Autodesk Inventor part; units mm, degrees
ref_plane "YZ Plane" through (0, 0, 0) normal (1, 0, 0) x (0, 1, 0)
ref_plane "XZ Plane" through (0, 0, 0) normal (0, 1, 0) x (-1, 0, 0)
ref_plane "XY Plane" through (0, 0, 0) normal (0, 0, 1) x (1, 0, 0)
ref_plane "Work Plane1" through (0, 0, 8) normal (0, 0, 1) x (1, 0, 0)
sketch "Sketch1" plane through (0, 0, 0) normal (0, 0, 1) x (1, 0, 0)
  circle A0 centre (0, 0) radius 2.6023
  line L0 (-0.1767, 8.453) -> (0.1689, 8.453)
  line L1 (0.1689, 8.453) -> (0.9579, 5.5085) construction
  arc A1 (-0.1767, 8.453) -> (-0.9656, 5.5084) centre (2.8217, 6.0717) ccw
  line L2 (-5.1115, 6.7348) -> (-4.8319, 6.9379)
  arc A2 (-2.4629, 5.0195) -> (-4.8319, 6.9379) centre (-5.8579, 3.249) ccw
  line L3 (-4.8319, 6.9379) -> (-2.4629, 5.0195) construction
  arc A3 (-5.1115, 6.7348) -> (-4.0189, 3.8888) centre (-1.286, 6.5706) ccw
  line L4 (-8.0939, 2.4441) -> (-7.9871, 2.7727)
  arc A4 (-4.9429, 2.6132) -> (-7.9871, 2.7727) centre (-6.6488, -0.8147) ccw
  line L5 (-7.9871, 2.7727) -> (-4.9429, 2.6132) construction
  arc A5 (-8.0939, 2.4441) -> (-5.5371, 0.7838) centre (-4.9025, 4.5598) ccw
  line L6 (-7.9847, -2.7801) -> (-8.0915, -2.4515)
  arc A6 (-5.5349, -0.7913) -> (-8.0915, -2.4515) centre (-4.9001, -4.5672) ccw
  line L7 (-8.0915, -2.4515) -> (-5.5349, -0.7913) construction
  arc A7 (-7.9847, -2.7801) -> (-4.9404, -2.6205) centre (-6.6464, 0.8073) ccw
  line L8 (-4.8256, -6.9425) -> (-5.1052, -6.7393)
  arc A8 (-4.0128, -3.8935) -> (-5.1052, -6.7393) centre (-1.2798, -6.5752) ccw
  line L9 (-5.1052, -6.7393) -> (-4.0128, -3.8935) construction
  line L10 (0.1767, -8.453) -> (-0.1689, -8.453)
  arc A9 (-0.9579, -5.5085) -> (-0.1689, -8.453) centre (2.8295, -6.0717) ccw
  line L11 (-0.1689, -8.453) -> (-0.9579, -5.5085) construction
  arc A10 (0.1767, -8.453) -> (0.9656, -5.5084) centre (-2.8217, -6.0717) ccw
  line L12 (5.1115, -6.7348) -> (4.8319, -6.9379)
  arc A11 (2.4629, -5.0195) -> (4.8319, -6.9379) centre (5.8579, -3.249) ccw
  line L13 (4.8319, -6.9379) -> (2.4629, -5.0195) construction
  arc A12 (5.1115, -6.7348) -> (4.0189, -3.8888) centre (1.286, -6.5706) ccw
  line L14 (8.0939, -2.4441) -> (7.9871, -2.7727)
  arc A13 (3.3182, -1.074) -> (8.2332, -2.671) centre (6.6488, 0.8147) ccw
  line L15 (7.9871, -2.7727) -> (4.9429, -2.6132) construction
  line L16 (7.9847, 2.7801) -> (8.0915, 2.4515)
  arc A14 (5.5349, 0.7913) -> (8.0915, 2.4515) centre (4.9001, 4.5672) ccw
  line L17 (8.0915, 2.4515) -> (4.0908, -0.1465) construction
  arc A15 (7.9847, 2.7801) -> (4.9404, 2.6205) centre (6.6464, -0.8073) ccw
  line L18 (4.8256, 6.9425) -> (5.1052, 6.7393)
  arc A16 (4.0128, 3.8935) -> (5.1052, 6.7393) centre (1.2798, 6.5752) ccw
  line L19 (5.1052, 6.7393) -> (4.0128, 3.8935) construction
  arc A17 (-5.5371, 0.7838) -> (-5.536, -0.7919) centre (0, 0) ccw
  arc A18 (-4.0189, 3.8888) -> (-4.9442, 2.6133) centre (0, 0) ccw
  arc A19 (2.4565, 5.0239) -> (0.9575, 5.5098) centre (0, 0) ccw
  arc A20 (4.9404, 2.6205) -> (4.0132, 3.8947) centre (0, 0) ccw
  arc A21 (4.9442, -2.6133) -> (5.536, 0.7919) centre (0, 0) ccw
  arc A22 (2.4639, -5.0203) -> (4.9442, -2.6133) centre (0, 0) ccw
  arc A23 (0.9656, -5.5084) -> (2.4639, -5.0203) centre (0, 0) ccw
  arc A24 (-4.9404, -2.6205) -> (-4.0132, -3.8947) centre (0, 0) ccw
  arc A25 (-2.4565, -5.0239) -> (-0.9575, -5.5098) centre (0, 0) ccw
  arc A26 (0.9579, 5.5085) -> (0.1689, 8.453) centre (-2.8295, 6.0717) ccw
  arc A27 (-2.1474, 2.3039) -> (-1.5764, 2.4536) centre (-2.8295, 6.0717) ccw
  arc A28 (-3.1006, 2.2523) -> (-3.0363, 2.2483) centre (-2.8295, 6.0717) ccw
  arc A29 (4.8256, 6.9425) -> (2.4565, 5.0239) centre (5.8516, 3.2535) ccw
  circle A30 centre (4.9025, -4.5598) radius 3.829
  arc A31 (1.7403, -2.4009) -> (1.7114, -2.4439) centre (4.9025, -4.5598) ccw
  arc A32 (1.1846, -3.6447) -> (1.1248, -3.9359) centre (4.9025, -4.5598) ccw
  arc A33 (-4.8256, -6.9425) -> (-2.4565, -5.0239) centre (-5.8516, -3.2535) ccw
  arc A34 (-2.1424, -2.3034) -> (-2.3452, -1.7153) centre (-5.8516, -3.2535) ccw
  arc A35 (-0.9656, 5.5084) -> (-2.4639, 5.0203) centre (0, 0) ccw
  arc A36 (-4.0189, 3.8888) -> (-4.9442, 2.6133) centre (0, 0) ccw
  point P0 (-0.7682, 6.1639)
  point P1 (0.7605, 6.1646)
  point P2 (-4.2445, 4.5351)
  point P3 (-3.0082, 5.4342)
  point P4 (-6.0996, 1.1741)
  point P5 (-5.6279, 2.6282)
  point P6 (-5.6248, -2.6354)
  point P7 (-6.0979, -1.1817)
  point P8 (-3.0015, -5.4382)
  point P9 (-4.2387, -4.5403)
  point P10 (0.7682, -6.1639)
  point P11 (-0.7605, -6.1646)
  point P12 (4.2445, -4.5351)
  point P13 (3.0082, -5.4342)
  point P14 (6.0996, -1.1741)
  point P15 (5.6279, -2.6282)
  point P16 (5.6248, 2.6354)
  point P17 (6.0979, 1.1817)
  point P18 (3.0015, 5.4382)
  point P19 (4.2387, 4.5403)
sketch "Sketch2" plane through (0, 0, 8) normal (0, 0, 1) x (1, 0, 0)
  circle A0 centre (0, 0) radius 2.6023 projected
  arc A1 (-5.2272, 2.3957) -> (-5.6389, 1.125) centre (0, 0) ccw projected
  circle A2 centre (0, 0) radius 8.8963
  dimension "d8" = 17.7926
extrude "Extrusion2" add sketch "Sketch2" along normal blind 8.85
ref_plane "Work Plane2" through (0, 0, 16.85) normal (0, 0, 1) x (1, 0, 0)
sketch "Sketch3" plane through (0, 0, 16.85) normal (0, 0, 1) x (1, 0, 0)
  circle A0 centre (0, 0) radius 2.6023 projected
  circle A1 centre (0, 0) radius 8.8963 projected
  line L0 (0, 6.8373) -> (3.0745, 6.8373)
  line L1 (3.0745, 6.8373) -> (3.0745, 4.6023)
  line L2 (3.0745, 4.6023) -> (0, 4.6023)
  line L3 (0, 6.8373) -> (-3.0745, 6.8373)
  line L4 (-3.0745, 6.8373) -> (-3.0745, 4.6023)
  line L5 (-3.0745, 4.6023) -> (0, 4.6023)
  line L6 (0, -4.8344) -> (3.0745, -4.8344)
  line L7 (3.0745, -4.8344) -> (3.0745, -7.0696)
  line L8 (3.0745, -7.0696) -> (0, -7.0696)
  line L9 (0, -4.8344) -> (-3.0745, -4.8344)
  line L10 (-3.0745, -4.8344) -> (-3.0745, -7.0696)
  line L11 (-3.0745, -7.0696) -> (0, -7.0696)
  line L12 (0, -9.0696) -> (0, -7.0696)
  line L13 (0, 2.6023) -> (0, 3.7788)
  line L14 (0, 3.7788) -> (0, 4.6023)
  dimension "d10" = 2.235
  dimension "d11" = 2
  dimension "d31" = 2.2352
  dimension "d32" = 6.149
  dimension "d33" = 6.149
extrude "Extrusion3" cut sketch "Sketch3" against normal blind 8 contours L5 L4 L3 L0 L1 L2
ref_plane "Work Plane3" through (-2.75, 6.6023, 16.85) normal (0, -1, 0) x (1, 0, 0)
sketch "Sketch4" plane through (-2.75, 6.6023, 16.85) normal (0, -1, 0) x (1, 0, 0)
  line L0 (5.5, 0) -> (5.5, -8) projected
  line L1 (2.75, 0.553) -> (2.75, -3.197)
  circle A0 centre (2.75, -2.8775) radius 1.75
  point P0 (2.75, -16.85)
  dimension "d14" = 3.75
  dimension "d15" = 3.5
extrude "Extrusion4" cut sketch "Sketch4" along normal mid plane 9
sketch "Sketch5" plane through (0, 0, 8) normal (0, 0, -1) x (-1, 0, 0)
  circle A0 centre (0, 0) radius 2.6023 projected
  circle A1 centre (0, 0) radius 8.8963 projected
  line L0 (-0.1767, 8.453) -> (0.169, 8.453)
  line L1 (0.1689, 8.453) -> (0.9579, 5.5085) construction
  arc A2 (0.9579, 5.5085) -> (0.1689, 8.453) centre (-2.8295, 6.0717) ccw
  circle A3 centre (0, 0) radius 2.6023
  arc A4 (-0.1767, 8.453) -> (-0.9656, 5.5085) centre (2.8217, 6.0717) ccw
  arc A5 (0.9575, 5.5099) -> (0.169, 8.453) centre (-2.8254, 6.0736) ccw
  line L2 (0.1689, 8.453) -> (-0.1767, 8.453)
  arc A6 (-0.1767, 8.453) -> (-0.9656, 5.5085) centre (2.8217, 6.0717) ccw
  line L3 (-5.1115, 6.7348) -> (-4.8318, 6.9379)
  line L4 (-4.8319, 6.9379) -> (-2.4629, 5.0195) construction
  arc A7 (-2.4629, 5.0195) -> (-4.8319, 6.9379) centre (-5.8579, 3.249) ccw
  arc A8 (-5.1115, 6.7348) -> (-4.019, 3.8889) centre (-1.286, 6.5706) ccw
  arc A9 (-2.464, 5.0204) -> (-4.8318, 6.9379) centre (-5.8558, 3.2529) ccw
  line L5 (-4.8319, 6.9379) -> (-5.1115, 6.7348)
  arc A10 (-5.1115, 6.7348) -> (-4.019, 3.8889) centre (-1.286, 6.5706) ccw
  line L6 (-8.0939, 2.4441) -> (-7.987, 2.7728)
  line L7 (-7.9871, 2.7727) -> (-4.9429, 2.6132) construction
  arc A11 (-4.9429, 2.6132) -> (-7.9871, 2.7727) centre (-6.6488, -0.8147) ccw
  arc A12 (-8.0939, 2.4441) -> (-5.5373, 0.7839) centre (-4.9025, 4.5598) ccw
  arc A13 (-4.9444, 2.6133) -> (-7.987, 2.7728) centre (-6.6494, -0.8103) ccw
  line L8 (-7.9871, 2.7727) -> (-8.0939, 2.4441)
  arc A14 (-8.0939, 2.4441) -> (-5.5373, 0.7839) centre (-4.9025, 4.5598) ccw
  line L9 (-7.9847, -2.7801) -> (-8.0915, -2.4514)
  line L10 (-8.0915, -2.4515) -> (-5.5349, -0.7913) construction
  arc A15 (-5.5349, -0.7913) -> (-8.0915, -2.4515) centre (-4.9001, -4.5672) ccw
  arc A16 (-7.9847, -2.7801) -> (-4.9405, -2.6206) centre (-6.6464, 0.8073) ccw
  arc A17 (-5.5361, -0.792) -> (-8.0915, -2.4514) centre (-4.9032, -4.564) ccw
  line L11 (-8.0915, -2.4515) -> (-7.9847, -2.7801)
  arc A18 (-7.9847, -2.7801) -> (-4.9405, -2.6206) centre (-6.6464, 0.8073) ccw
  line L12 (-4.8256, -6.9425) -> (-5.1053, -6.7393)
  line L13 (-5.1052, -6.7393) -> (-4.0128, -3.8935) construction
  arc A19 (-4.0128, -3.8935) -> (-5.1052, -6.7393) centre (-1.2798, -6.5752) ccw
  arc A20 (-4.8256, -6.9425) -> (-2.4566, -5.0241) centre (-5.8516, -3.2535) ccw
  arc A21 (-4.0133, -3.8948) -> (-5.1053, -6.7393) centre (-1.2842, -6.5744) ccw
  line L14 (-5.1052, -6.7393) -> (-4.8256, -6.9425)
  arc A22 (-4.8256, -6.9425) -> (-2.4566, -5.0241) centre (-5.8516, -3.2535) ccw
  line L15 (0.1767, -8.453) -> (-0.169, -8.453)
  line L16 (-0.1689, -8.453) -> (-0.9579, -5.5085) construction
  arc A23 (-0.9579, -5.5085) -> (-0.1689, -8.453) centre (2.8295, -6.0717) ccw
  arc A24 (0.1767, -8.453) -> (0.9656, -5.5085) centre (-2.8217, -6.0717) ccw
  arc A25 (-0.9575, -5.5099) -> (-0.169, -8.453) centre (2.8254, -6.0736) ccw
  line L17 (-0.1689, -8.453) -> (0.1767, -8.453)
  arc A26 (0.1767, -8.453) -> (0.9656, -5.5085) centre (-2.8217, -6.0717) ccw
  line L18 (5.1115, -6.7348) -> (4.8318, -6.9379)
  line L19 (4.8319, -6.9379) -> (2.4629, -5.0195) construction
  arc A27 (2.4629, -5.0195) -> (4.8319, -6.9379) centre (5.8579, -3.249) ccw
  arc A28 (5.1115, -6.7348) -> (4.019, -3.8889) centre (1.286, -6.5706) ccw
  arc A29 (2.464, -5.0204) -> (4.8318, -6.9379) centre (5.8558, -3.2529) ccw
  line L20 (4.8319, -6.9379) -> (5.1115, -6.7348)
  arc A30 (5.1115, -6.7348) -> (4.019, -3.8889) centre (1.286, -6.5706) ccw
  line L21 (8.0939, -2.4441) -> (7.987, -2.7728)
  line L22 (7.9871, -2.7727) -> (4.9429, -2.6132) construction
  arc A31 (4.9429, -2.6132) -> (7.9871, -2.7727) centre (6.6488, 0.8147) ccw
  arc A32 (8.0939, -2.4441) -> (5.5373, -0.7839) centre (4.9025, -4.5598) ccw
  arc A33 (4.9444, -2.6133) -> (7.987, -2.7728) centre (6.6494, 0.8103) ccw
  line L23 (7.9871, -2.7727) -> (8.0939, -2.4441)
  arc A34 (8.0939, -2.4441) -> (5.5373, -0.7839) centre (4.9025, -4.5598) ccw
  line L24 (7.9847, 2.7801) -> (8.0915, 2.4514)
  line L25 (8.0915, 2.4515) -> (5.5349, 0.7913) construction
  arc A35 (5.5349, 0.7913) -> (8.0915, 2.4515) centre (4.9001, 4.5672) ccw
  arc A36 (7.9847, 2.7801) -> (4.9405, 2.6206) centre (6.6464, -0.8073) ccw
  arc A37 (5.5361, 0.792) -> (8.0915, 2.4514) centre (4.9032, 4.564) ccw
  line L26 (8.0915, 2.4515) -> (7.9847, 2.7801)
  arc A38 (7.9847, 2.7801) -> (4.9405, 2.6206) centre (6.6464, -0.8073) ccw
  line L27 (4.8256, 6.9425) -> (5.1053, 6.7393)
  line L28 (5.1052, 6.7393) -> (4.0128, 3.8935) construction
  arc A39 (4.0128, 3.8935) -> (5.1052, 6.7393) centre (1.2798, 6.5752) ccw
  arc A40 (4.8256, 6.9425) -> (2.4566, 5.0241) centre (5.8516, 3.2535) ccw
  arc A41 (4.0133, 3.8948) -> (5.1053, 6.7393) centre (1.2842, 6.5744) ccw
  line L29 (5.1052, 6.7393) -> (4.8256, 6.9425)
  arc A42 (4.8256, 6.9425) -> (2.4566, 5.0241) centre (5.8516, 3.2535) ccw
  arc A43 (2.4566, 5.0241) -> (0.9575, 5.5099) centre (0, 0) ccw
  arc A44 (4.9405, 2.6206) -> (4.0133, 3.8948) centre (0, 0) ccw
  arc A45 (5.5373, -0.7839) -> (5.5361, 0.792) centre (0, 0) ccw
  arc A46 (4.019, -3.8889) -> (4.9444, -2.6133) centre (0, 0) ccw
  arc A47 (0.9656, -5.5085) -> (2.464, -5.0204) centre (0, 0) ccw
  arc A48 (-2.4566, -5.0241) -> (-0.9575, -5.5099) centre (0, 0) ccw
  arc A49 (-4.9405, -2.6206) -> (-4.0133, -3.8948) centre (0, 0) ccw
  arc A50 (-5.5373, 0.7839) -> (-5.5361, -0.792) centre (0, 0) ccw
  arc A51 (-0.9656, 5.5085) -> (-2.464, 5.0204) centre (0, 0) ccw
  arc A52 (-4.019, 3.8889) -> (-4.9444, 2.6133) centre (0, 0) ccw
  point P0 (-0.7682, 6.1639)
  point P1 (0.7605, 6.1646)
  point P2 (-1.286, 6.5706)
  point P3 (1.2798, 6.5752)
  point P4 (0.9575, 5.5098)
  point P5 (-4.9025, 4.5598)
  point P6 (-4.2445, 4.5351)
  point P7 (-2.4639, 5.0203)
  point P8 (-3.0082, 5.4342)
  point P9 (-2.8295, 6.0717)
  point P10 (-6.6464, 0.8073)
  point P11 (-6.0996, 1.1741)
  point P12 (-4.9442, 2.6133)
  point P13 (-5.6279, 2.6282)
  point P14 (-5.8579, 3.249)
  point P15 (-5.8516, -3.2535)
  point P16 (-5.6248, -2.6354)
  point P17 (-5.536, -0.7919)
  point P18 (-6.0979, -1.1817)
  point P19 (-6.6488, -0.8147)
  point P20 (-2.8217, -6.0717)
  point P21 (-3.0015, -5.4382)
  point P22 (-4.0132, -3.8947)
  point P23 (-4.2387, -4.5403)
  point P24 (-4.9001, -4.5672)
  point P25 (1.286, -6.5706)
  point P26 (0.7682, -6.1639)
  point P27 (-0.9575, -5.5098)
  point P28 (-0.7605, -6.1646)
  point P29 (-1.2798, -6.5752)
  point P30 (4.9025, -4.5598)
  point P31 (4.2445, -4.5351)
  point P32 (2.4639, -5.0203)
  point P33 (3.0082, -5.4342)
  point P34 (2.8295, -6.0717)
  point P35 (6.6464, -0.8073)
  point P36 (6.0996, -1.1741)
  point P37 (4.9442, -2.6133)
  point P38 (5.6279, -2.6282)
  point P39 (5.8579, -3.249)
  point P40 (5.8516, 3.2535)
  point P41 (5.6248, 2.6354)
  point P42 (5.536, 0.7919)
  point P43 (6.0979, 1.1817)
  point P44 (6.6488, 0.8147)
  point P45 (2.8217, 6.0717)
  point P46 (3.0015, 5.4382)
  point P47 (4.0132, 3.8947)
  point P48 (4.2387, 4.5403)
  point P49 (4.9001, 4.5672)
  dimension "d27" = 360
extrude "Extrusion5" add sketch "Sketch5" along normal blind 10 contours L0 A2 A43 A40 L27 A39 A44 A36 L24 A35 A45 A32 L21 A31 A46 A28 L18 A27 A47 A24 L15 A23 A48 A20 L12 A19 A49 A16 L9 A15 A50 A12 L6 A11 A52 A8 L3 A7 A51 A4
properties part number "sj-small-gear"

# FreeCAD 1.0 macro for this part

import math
import FreeCAD as App
import Part
import Sketcher
from FreeCAD import Vector
Q = App.Units.Quantity


def add_polygon(sketch, points):
    """Adds a closed chain of lines whose ends are joined by coincident constraints."""
    first, n = sketch.GeometryCount, len(points)
    for a, b in zip(points, points[1:] + points[:1]):
        sketch.addGeometry(Part.LineSegment(App.Vector(*a, 0), App.Vector(*b, 0)), False)
    for i in range(n):
        sketch.addConstraint(Sketcher.Constraint("Coincident", first + i, 2, first + (i + 1) % n, 1))

doc = App.newDocument("Part")
params = doc.addObject("Spreadsheet::Sheet", "Params")
for row, (alias, value) in enumerate([
    ("pad1_length", "8.85 mm"),
    ("pocket1_length", "8 mm"),
    ("sketch3_diameter", "3.5 mm"),
    ("pocket2_length", "9 mm"),
    ("pad2_length", "10 mm"),
], start=1):
    params.set(f"A{row}", alias)
    params.set(f"B{row}", "=" + value)
    params.setAlias(f"B{row}", alias)

body = doc.addObject("PartDesign::Body", "Body")

# Sketch on XY plane
sketch1 = doc.addObject("Sketcher::SketchObject", "Sketch")
body.addObject(sketch1)
sketch1.AttachmentSupport = (doc.XY_Plane, [""])
sketch1.MapMode = "FlatFace"
sketch1.AttachmentOffset = App.Placement(Vector(0, 0, 8), App.Rotation())
sketch1.addGeometry(Part.Circle(Vector(0, 0, 0), Vector(0, 0, 1), 8.8963), False)
sketch1.addGeometry(Part.Circle(Vector(0, 0, 0), Vector(0, 0, 1), 2.6023), False)
sketch1.addConstraint(Sketcher.Constraint("Coincident", 0, 3, -1, 1))
sketch1.addConstraint(Sketcher.Constraint("Coincident", 1, 3, -1, 1))
sketch1.addConstraint(Sketcher.Constraint("Diameter", 0, Q("17.7926 mm")))
sketch1.addConstraint(Sketcher.Constraint("Diameter", 1, Q("5.2046 mm")))
pad1 = doc.addObject("PartDesign::Pad", "Pad")
body.addObject(pad1)
pad1.Profile = sketch1
pad1.setExpression("Length", "Params.pad1_length")

# Sketch on XY plane
sketch2 = doc.addObject("Sketcher::SketchObject", "Sketch001")
body.addObject(sketch2)
sketch2.AttachmentSupport = (doc.XY_Plane, [""])
sketch2.MapMode = "FlatFace"
sketch2.AttachmentOffset = App.Placement(Vector(0, 0, 16.85), App.Rotation())
add_polygon(sketch2, [(-3.0745, 4.6023), (3.0745, 4.6023), (3.0745, 6.8373), (-3.0745, 6.8373)])  # lines 0-3
sketch2.addConstraint(Sketcher.Constraint("Horizontal", 0))
sketch2.addConstraint(Sketcher.Constraint("Vertical", 1))
sketch2.addConstraint(Sketcher.Constraint("Horizontal", 2))
sketch2.addConstraint(Sketcher.Constraint("Vertical", 3))
sketch2.addConstraint(Sketcher.Constraint("DistanceX", 0, 1, 0, 2, Q("6.149 mm")))
sketch2.addConstraint(Sketcher.Constraint("DistanceY", 1, 1, 1, 2, Q("2.235 mm")))
sketch2.addConstraint(Sketcher.Constraint("DistanceX", -1, 1, 0, 2, Q("3.0745 mm")))
sketch2.addConstraint(Sketcher.Constraint("DistanceY", -1, 1, 0, 2, Q("4.6023 mm")))
pocket1 = doc.addObject("PartDesign::Pocket", "Pocket")
body.addObject(pocket1)
pocket1.Profile = sketch2
pocket1.setExpression("Length", "Params.pocket1_length")

# Sketch on XZ plane
sketch3 = doc.addObject("Sketcher::SketchObject", "Sketch002")
body.addObject(sketch3)
sketch3.AttachmentSupport = (doc.XZ_Plane, [""])
sketch3.MapMode = "FlatFace"
sketch3.AttachmentOffset = App.Placement(Vector(0, 0, -6.6023), App.Rotation())
sketch3.addGeometry(Part.Circle(Vector(0, 13.9725, 0), Vector(0, 0, 1), 1.75), False)
sketch3.addConstraint(Sketcher.Constraint("PointOnObject", 0, 3, -2))
sketch3.addConstraint(Sketcher.Constraint("Diameter", 0, Q("3.5 mm")))
sketch3.addConstraint(Sketcher.Constraint("DistanceY", -1, 1, 0, 3, Q("13.9725 mm")))
sketch3.setExpression("Constraints[1]", "Params.sketch3_diameter")
pocket2 = doc.addObject("PartDesign::Pocket", "Pocket001")
body.addObject(pocket2)
pocket2.Profile = sketch3
pocket2.setExpression("Length", "Params.pocket2_length")
pocket2.Midplane = True

# Sketch on XY plane
sketch4 = doc.addObject("Sketcher::SketchObject", "Sketch003")
body.addObject(sketch4)
sketch4.AttachmentSupport = (doc.XY_Plane, [""])
sketch4.MapMode = "FlatFace"
sketch4.AttachmentOffset = App.Placement(Vector(0, 0, 8), App.Rotation())
sketch4.addGeometry(Part.LineSegment(Vector(-0.169, 8.453, 0), Vector(0.1767, 8.453, 0)), False)
sketch4.addGeometry(Part.ArcOfCircle(Part.Circle(Vector(-2.8217, 6.0717, 0), Vector(0, 0, 1), 3.828968), math.radians(-8.458328), math.radians(38.45626)), False)
sketch4.addGeometry(Part.ArcOfCircle(Part.Circle(Vector(0.015795, 0.063392, 0), Vector(0, 0, 1), 5.527326), math.radians(63.721891), math.radians(80.10529)), False)
sketch4.addGeometry(Part.ArcOfCircle(Part.Circle(Vector(5.8579, 3.249, 0), Vector(0, 0, 1), 3.828929), math.radians(105.544376), math.radians(152.45786)), False)
sketch4.addGeometry(Part.LineSegment(Vector(4.8318, 6.9379, 0), Vector(5.1115, 6.7348, 0)), False)
sketch4.addGeometry(Part.ArcOfCircle(Part.Circle(Vector(1.286, 6.5706, 0), Vector(0, 0, 1), 3.829022), math.radians(-44.457184), math.radians(2.457769)), False)
sketch4.addGeometry(Part.ArcOfCircle(Part.Circle(Vector(0.050479, 0.042371, 0), Vector(0, 0, 1), 5.526748), math.radians(27.72066), math.radians(44.105694)), False)
sketch4.addGeometry(Part.ArcOfCircle(Part.Circle(Vector(6.6488, -0.8147, 0), Vector(0, 0, 1), 3.828915), math.radians(69.543608), math.radians(116.457308)), False)
sketch4.addGeometry(Part.LineSegment(Vector(7.987, 2.7728, 0), Vector(8.0939, 2.4441, 0)), False)
sketch4.addGeometry(Part.ArcOfCircle(Part.Circle(Vector(4.9025, 4.5598, 0), Vector(0, 0, 1), 3.828997), math.radians(-80.456741), math.radians(-33.541906)), False)
sketch4.addGeometry(Part.ArcOfCircle(Part.Circle(Vector(0.066119, 0.004634, 0), Vector(0, 0, 1), 5.526398), math.radians(-8.280767), math.radians(8.106174)), False)
sketch4.addGeometry(Part.ArcOfCircle(Part.Circle(Vector(4.9001, -4.5672, 0), Vector(0, 0, 1), 3.828889), math.radians(33.543153), math.radians(80.456741)), False)
sketch4.addGeometry(Part.LineSegment(Vector(8.0915, -2.4514, 0), Vector(7.9847, -2.7801, 0)), False)
sketch4.addGeometry(Part.ArcOfCircle(Part.Circle(Vector(6.6464, 0.8073, 0), Vector(0, 0, 1), 3.828901), math.radians(-116.457308), math.radians(-69.541683)), False)
sketch4.addGeometry(Part.ArcOfCircle(Part.Circle(Vector(0.053472, -0.033401, 0), Vector(0, 0, 1), 5.529615), math.radians(-44.272948), math.radians(-27.896799)), False)
sketch4.addGeometry(Part.ArcOfCircle(Part.Circle(Vector(1.2798, -6.5752, 0), Vector(0, 0, 1), 3.828943), math.radians(-2.456274), math.radians(44.457184)), False)
sketch4.addGeometry(Part.LineSegment(Vector(5.1053, -6.7393, 0), Vector(4.8256, -6.9425, 0)), False)
sketch4.addGeometry(Part.ArcOfCircle(Part.Circle(Vector(5.8516, -3.2535, 0), Vector(0, 0, 1), 3.82902), math.radians(-152.456533), math.radians(-105.542534)), False)
sketch4.addGeometry(Part.ArcOfCircle(Part.Circle(Vector(0.025507, -0.063104, 0), Vector(0, 0, 1), 5.524644), math.radians(-80.283701), math.radians(-63.893238)), False)
sketch4.addGeometry(Part.ArcOfCircle(Part.Circle(Vector(-2.8295, -6.0717, 0), Vector(0, 0, 1), 3.829046), math.radians(-38.455329), math.radians(8.458108)), False)
sketch4.addGeometry(Part.LineSegment(Vector(0.169, -8.453, 0), Vector(-0.1767, -8.453, 0)), False)
sketch4.addGeometry(Part.ArcOfCircle(Part.Circle(Vector(2.8217, -6.0717, 0), Vector(0, 0, 1), 3.828968), math.radians(171.541672), math.radians(218.45626)), False)
sketch4.addGeometry(Part.ArcOfCircle(Part.Circle(Vector(-0.015795, -0.063392, 0), Vector(0, 0, 1), 5.527326), math.radians(-116.278109), math.radians(-99.89471)), False)
sketch4.addGeometry(Part.ArcOfCircle(Part.Circle(Vector(-5.8579, -3.249, 0), Vector(0, 0, 1), 3.828929), math.radians(-74.455624), math.radians(-27.54214)), False)
sketch4.addGeometry(Part.LineSegment(Vector(-4.8318, -6.9379, 0), Vector(-5.1115, -6.7348, 0)), False)
sketch4.addGeometry(Part.ArcOfCircle(Part.Circle(Vector(-1.286, -6.5706, 0), Vector(0, 0, 1), 3.829022), math.radians(135.542816), math.radians(182.457769)), False)
sketch4.addGeometry(Part.ArcOfCircle(Part.Circle(Vector(-0.050479, -0.042371, 0), Vector(0, 0, 1), 5.526748), math.radians(-152.27934), math.radians(-135.894306)), False)
sketch4.addGeometry(Part.ArcOfCircle(Part.Circle(Vector(-6.6488, 0.8147, 0), Vector(0, 0, 1), 3.828915), math.radians(-110.456392), math.radians(-63.542692)), False)
sketch4.addGeometry(Part.LineSegment(Vector(-7.987, -2.7728, 0), Vector(-8.0939, -2.4441, 0)), False)
sketch4.addGeometry(Part.ArcOfCircle(Part.Circle(Vector(-4.9025, -4.5598, 0), Vector(0, 0, 1), 3.828997), math.radians(99.543259), math.radians(146.458094)), False)
sketch4.addGeometry(Part.ArcOfCircle(Part.Circle(Vector(-0.066119, -0.004634, 0), Vector(0, 0, 1), 5.526398), math.radians(171.719233), math.radians(188.106174)), False)
sketch4.addGeometry(Part.ArcOfCircle(Part.Circle(Vector(-4.9001, 4.5672, 0), Vector(0, 0, 1), 3.828889), math.radians(-146.456847), math.radians(-99.543259)), False)
sketch4.addGeometry(Part.LineSegment(Vector(-8.0915, 2.4514, 0), Vector(-7.9847, 2.7801, 0)), False)
sketch4.addGeometry(Part.ArcOfCircle(Part.Circle(Vector(-6.6464, -0.8073, 0), Vector(0, 0, 1), 3.828901), math.radians(63.542692), math.radians(110.458317)), False)
sketch4.addGeometry(Part.ArcOfCircle(Part.Circle(Vector(-0.053472, 0.033401, 0), Vector(0, 0, 1), 5.529615), math.radians(135.727052), math.radians(152.103201)), False)
sketch4.addGeometry(Part.ArcOfCircle(Part.Circle(Vector(-1.2798, 6.5752, 0), Vector(0, 0, 1), 3.828943), math.radians(177.543726), math.radians(224.457184)), False)
sketch4.addGeometry(Part.LineSegment(Vector(-5.1053, 6.7393, 0), Vector(-4.8256, 6.9425, 0)), False)
sketch4.addGeometry(Part.ArcOfCircle(Part.Circle(Vector(-5.8516, 3.2535, 0), Vector(0, 0, 1), 3.82902), math.radians(27.543467), math.radians(74.457466)), False)
sketch4.addGeometry(Part.ArcOfCircle(Part.Circle(Vector(-0.025507, 0.063104, 0), Vector(0, 0, 1), 5.524644), math.radians(99.716299), math.radians(116.106762)), False)
sketch4.addGeometry(Part.ArcOfCircle(Part.Circle(Vector(2.8295, 6.0717, 0), Vector(0, 0, 1), 3.829046), math.radians(141.544671), math.radians(188.458108)), False)
sketch4.addGeometry(Part.Circle(Vector(0, 0, 0), Vector(0, 0, 1), 2.6023), False)
sketch4.addConstraint(Sketcher.Constraint("Coincident", 0, 2, 1, 2))
sketch4.addConstraint(Sketcher.Constraint("Coincident", 1, 1, 2, 2))
sketch4.addConstraint(Sketcher.Constraint("Coincident", 2, 1, 3, 2))
sketch4.addConstraint(Sketcher.Constraint("Coincident", 3, 1, 4, 1))
sketch4.addConstraint(Sketcher.Constraint("Coincident", 4, 2, 5, 2))
sketch4.addConstraint(Sketcher.Constraint("Coincident", 5, 1, 6, 2))
sketch4.addConstraint(Sketcher.Constraint("Coincident", 6, 1, 7, 2))
sketch4.addConstraint(Sketcher.Constraint("Coincident", 7, 1, 8, 1))
sketch4.addConstraint(Sketcher.Constraint("Coincident", 8, 2, 9, 2))
sketch4.addConstraint(Sketcher.Constraint("Coincident", 9, 1, 10, 2))
sketch4.addConstraint(Sketcher.Constraint("Coincident", 10, 1, 11, 2))
sketch4.addConstraint(Sketcher.Constraint("Coincident", 11, 1, 12, 1))
sketch4.addConstraint(Sketcher.Constraint("Coincident", 12, 2, 13, 2))
sketch4.addConstraint(Sketcher.Constraint("Coincident", 13, 1, 14, 2))
sketch4.addConstraint(Sketcher.Constraint("Coincident", 14, 1, 15, 2))
sketch4.addConstraint(Sketcher.Constraint("Coincident", 15, 1, 16, 1))
sketch4.addConstraint(Sketcher.Constraint("Coincident", 16, 2, 17, 2))
sketch4.addConstraint(Sketcher.Constraint("Coincident", 17, 1, 18, 2))
sketch4.addConstraint(Sketcher.Constraint("Coincident", 18, 1, 19, 2))
sketch4.addConstraint(Sketcher.Constraint("Coincident", 19, 1, 20, 1))
sketch4.addConstraint(Sketcher.Constraint("Coincident", 20, 2, 21, 2))
sketch4.addConstraint(Sketcher.Constraint("Coincident", 21, 1, 22, 2))
sketch4.addConstraint(Sketcher.Constraint("Coincident", 22, 1, 23, 2))
sketch4.addConstraint(Sketcher.Constraint("Coincident", 23, 1, 24, 1))
sketch4.addConstraint(Sketcher.Constraint("Coincident", 24, 2, 25, 2))
sketch4.addConstraint(Sketcher.Constraint("Coincident", 25, 1, 26, 2))
sketch4.addConstraint(Sketcher.Constraint("Coincident", 26, 1, 27, 2))
sketch4.addConstraint(Sketcher.Constraint("Coincident", 27, 1, 28, 1))
sketch4.addConstraint(Sketcher.Constraint("Coincident", 28, 2, 29, 2))
sketch4.addConstraint(Sketcher.Constraint("Coincident", 29, 1, 30, 2))
sketch4.addConstraint(Sketcher.Constraint("Coincident", 30, 1, 31, 2))
sketch4.addConstraint(Sketcher.Constraint("Coincident", 31, 1, 32, 1))
sketch4.addConstraint(Sketcher.Constraint("Coincident", 32, 2, 33, 2))
sketch4.addConstraint(Sketcher.Constraint("Coincident", 33, 1, 34, 2))
sketch4.addConstraint(Sketcher.Constraint("Coincident", 34, 1, 35, 2))
sketch4.addConstraint(Sketcher.Constraint("Coincident", 35, 1, 36, 1))
sketch4.addConstraint(Sketcher.Constraint("Coincident", 36, 2, 37, 2))
sketch4.addConstraint(Sketcher.Constraint("Coincident", 37, 1, 38, 2))
sketch4.addConstraint(Sketcher.Constraint("Coincident", 38, 1, 39, 2))
sketch4.addConstraint(Sketcher.Constraint("Coincident", 39, 1, 0, 1))
sketch4.addConstraint(Sketcher.Constraint("Horizontal", 0))
sketch4.addConstraint(Sketcher.Constraint("Horizontal", 20))
sketch4.addConstraint(Sketcher.Constraint("Coincident", 40, 3, -1, 1))
sketch4.addConstraint(Sketcher.Constraint("Radius", 1, Q("3.829 mm")))
sketch4.addConstraint(Sketcher.Constraint("Radius", 3, Q("3.829 mm")))
sketch4.addConstraint(Sketcher.Constraint("Radius", 5, Q("3.829 mm")))
sketch4.addConstraint(Sketcher.Constraint("Radius", 7, Q("3.829 mm")))
sketch4.addConstraint(Sketcher.Constraint("Radius", 9, Q("3.829 mm")))
sketch4.addConstraint(Sketcher.Constraint("Radius", 11, Q("3.829 mm")))
sketch4.addConstraint(Sketcher.Constraint("Radius", 13, Q("3.829 mm")))
sketch4.addConstraint(Sketcher.Constraint("Radius", 15, Q("3.829 mm")))
sketch4.addConstraint(Sketcher.Constraint("Radius", 17, Q("3.829 mm")))
sketch4.addConstraint(Sketcher.Constraint("Radius", 19, Q("3.829 mm")))
sketch4.addConstraint(Sketcher.Constraint("Radius", 21, Q("3.829 mm")))
sketch4.addConstraint(Sketcher.Constraint("Radius", 23, Q("3.829 mm")))
sketch4.addConstraint(Sketcher.Constraint("Radius", 25, Q("3.829 mm")))
sketch4.addConstraint(Sketcher.Constraint("Radius", 27, Q("3.829 mm")))
sketch4.addConstraint(Sketcher.Constraint("Radius", 29, Q("3.829 mm")))
sketch4.addConstraint(Sketcher.Constraint("Radius", 31, Q("3.829 mm")))
sketch4.addConstraint(Sketcher.Constraint("Radius", 33, Q("3.829 mm")))
sketch4.addConstraint(Sketcher.Constraint("Radius", 35, Q("3.829 mm")))
sketch4.addConstraint(Sketcher.Constraint("Radius", 37, Q("3.829 mm")))
sketch4.addConstraint(Sketcher.Constraint("Radius", 39, Q("3.829 mm")))
sketch4.addConstraint(Sketcher.Constraint("Diameter", 40, Q("5.2046 mm")))
sketch4.addConstraint(Sketcher.Constraint("DistanceX", -1, 1, 11, 3, Q("4.9 mm")))
sketch4.addConstraint(Sketcher.Constraint("DistanceX", 31, 3, -1, 1, Q("4.9 mm")))
sketch4.addConstraint(Sketcher.Constraint("Radius", 2, Q("5.5273 mm")))
sketch4.addConstraint(Sketcher.Constraint("Radius", 6, Q("5.5267 mm")))
sketch4.addConstraint(Sketcher.Constraint("Radius", 10, Q("5.5264 mm")))
sketch4.addConstraint(Sketcher.Constraint("Radius", 14, Q("5.5296 mm")))
sketch4.addConstraint(Sketcher.Constraint("Radius", 18, Q("5.5246 mm")))
sketch4.addConstraint(Sketcher.Constraint("Radius", 22, Q("5.5273 mm")))
sketch4.addConstraint(Sketcher.Constraint("Radius", 26, Q("5.5267 mm")))
sketch4.addConstraint(Sketcher.Constraint("Radius", 30, Q("5.5264 mm")))
sketch4.addConstraint(Sketcher.Constraint("Radius", 34, Q("5.5296 mm")))
sketch4.addConstraint(Sketcher.Constraint("Radius", 38, Q("5.5246 mm")))
sketch4.addConstraint(Sketcher.Constraint("DistanceY", 12, 2, -1, 1, Q("2.78 mm")))
sketch4.addConstraint(Sketcher.Constraint("DistanceY", -1, 1, 32, 2, Q("2.78 mm")))
sketch4.addConstraint(Sketcher.Constraint("DistanceX", 0, 1, 0, 2, Q("0.3457 mm")))
sketch4.addConstraint(Sketcher.Constraint("DistanceX", 20, 2, 20, 1, Q("0.3457 mm")))
sketch4.addConstraint(Sketcher.Constraint("DistanceX", -1, 1, 3, 3, Q("5.858 mm")))
sketch4.addConstraint(Sketcher.Constraint("DistanceY", -1, 1, 3, 3, Q("3.249 mm")))
sketch4.addConstraint(Sketcher.Constraint("DistanceX", -1, 1, 5, 3, Q("1.286 mm")))
sketch4.addConstraint(Sketcher.Constraint("DistanceX", -1, 1, 10, 3, Q("0.066 mm")))
sketch4.addConstraint(Sketcher.Constraint("DistanceY", 18, 3, -1, 1, Q("0.063 mm")))
sketch4.addConstraint(Sketcher.Constraint("DistanceX", 23, 3, -1, 1, Q("5.858 mm")))
sketch4.addConstraint(Sketcher.Constraint("DistanceY", 23, 3, -1, 1, Q("3.249 mm")))
sketch4.addConstraint(Sketcher.Constraint("DistanceX", 25, 3, -1, 1, Q("1.286 mm")))
sketch4.addConstraint(Sketcher.Constraint("DistanceX", 30, 3, -1, 1, Q("0.066 mm")))
sketch4.addConstraint(Sketcher.Constraint("DistanceY", -1, 1, 38, 3, Q("0.063 mm")))
sketch4.addConstraint(Sketcher.Constraint("DistanceY", -1, 1, 0, 2, Q("8.453 mm")))
sketch4.addConstraint(Sketcher.Constraint("DistanceX", -1, 1, 2, 1, Q("2.463 mm")))
sketch4.addConstraint(Sketcher.Constraint("DistanceX", -1, 1, 5, 1, Q("4.019 mm")))
sketch4.addConstraint(Sketcher.Constraint("DistanceX", -1, 1, 6, 1, Q("4.943 mm")))
sketch4.addConstraint(Sketcher.Constraint("DistanceX", -1, 1, 7, 1, Q("7.987 mm")))
sketch4.addConstraint(Sketcher.Constraint("DistanceX", -1, 1, 8, 2, Q("8.094 mm")))
sketch4.addConstraint(Sketcher.Constraint("DistanceY", -1, 1, 8, 2, Q("2.444 mm")))
sketch4.addConstraint(Sketcher.Constraint("DistanceX", -1, 1, 10, 1, Q("5.535 mm")))
sketch4.addConstraint(Sketcher.Constraint("DistanceX", -1, 1, 18, 1, Q("0.958 mm")))
sketch4.addConstraint(Sketcher.Constraint("DistanceX", -1, 1, 19, 1, Q("0.169 mm")))
sketch4.addConstraint(Sketcher.Constraint("DistanceY", 19, 1, -1, 1, Q("8.453 mm")))
sketch4.addConstraint(Sketcher.Constraint("DistanceX", 22, 1, -1, 1, Q("2.463 mm")))
sketch4.addConstraint(Sketcher.Constraint("DistanceX", 25, 1, -1, 1, Q("4.019 mm")))
sketch4.addConstraint(Sketcher.Constraint("DistanceX", 26, 1, -1, 1, Q("4.943 mm")))
sketch4.addConstraint(Sketcher.Constraint("DistanceX", 27, 1, -1, 1, Q("7.987 mm")))
sketch4.addConstraint(Sketcher.Constraint("DistanceX", 28, 2, -1, 1, Q("8.094 mm")))
sketch4.addConstraint(Sketcher.Constraint("DistanceY", 28, 2, -1, 1, Q("2.444 mm")))
sketch4.addConstraint(Sketcher.Constraint("DistanceX", 30, 1, -1, 1, Q("5.535 mm")))
sketch4.addConstraint(Sketcher.Constraint("DistanceX", 38, 1, -1, 1, Q("0.958 mm")))
sketch4.addConstraint(Sketcher.Constraint("DistanceX", 39, 1, -1, 1, Q("0.169 mm")))
sketch4.addConstraint(Sketcher.Constraint("Distance", 4, Q("0.3457 mm")))
sketch4.addConstraint(Sketcher.Constraint("Distance", 8, Q("0.3456 mm")))
sketch4.addConstraint(Sketcher.Constraint("Distance", 12, Q("0.3456 mm")))
sketch4.addConstraint(Sketcher.Constraint("Distance", 16, Q("0.3457 mm")))
sketch4.addConstraint(Sketcher.Constraint("Distance", 24, Q("0.3457 mm")))
sketch4.addConstraint(Sketcher.Constraint("Distance", 28, Q("0.3456 mm")))
sketch4.addConstraint(Sketcher.Constraint("Distance", 32, Q("0.3456 mm")))
sketch4.addConstraint(Sketcher.Constraint("Distance", 36, Q("0.3457 mm")))
sketch4.addConstraint(Sketcher.Constraint("DistanceX", 1, 3, -1, 1, Q("2.8217 mm")))
sketch4.addConstraint(Sketcher.Constraint("DistanceX", -1, 1, 2, 3, Q("0.0158 mm")))
sketch4.addConstraint(Sketcher.Constraint("DistanceY", -1, 1, 5, 3, Q("6.5706 mm")))
sketch4.addConstraint(Sketcher.Constraint("DistanceX", -1, 1, 6, 3, Q("0.0505 mm")))
sketch4.addConstraint(Sketcher.Constraint("DistanceX", -1, 1, 9, 3, Q("4.9025 mm")))
sketch4.addConstraint(Sketcher.Constraint("DistanceY", -1, 1, 10, 3, Q("0.0046 mm")))
sketch4.addConstraint(Sketcher.Constraint("DistanceX", -1, 1, 13, 3, Q("6.6464 mm")))
sketch4.addConstraint(Sketcher.Constraint("DistanceY", -1, 1, 13, 3, Q("0.8073 mm")))
sketch4.addConstraint(Sketcher.Constraint("DistanceX", -1, 1, 14, 3, Q("0.0535 mm")))
sketch4.addConstraint(Sketcher.Constraint("DistanceY", 14, 3, -1, 1, Q("0.0334 mm")))
sketch4.addConstraint(Sketcher.Constraint("DistanceX", -1, 1, 15, 3, Q("1.2798 mm")))
sketch4.addConstraint(Sketcher.Constraint("DistanceY", 15, 3, -1, 1, Q("6.5752 mm")))
sketch4.addConstraint(Sketcher.Constraint("DistanceX", -1, 1, 17, 3, Q("5.8516 mm")))
sketch4.addConstraint(Sketcher.Constraint("DistanceY", 17, 3, -1, 1, Q("3.2535 mm")))
sketch4.addConstraint(Sketcher.Constraint("DistanceX", -1, 1, 18, 3, Q("0.0255 mm")))
sketch4.addConstraint(Sketcher.Constraint("DistanceX", -1, 1, 21, 3, Q("2.8217 mm")))
sketch4.addConstraint(Sketcher.Constraint("DistanceX", 22, 3, -1, 1, Q("0.0158 mm")))
sketch4.addConstraint(Sketcher.Constraint("DistanceY", 25, 3, -1, 1, Q("6.5706 mm")))
sketch4.addConstraint(Sketcher.Constraint("DistanceX", 26, 3, -1, 1, Q("0.0505 mm")))
sketch4.addConstraint(Sketcher.Constraint("DistanceX", 29, 3, -1, 1, Q("4.9025 mm")))
sketch4.addConstraint(Sketcher.Constraint("DistanceY", 30, 3, -1, 1, Q("0.0046 mm")))
sketch4.addConstraint(Sketcher.Constraint("DistanceX", 33, 3, -1, 1, Q("6.6464 mm")))
sketch4.addConstraint(Sketcher.Constraint("DistanceY", 33, 3, -1, 1, Q("0.8073 mm")))
sketch4.addConstraint(Sketcher.Constraint("DistanceX", 34, 3, -1, 1, Q("0.0535 mm")))
sketch4.addConstraint(Sketcher.Constraint("DistanceY", -1, 1, 34, 3, Q("0.0334 mm")))
sketch4.addConstraint(Sketcher.Constraint("DistanceX", 35, 3, -1, 1, Q("1.2798 mm")))
sketch4.addConstraint(Sketcher.Constraint("DistanceY", -1, 1, 35, 3, Q("6.5752 mm")))
sketch4.addConstraint(Sketcher.Constraint("DistanceX", 37, 3, -1, 1, Q("5.8516 mm")))
sketch4.addConstraint(Sketcher.Constraint("DistanceY", -1, 1, 37, 3, Q("3.2535 mm")))
sketch4.addConstraint(Sketcher.Constraint("DistanceX", 38, 3, -1, 1, Q("0.0255 mm")))
sketch4.addConstraint(Sketcher.Constraint("DistanceX", -1, 1, 3, 1, Q("4.8318 mm")))
sketch4.addConstraint(Sketcher.Constraint("DistanceX", -1, 1, 15, 1, Q("5.1052 mm")))
sketch4.addConstraint(Sketcher.Constraint("DistanceX", 23, 1, -1, 1, Q("4.8318 mm")))
sketch4.addConstraint(Sketcher.Constraint("DistanceX", 35, 1, -1, 1, Q("5.1052 mm")))
pad2 = doc.addObject("PartDesign::Pad", "Pad001")
body.addObject(pad2)
pad2.Profile = sketch4
pad2.setExpression("Length", "Params.pad2_length")
pad2.Reversed = True

doc.recompute()
